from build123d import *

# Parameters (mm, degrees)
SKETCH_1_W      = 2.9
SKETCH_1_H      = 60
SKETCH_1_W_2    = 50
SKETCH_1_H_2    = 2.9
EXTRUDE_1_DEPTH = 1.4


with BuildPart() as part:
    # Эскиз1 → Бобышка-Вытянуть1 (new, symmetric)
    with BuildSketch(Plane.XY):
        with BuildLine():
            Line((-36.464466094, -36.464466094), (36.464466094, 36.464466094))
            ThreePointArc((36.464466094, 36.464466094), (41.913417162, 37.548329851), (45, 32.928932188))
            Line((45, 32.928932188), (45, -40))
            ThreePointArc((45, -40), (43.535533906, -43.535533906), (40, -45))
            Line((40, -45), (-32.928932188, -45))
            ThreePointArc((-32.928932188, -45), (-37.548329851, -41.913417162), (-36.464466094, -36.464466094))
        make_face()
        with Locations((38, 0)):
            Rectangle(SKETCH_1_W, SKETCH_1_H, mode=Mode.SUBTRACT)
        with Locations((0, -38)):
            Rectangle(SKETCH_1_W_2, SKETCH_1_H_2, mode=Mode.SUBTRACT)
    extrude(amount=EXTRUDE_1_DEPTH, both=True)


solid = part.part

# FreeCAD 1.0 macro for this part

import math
import FreeCAD as App
import Part
import Sketcher
from FreeCAD import Vector

doc = App.newDocument("Part")
body = doc.addObject("PartDesign::Body", "Body")

# Sketch on XY plane
sketch1 = body.newObject("Sketcher::SketchObject", "Sketch")
sketch1.AttachmentSupport = (doc.getObject("XY_Plane"), [""])
sketch1.MapMode = "FlatFace"
sketch1.addGeometry([
    Part.LineSegment(Vector(36.5, 36.5, 0), Vector(-36.5, -36.5, 0)),  # 0
    Part.ArcOfCircle(Part.Circle(Vector(-32.9, -40, 0), Vector(0, 0, 1), 5), math.radians(135), math.radians(270)),  # 1
    Part.LineSegment(Vector(-32.9, -45, 0), Vector(40, -45, 0)),  # 2
    Part.ArcOfCircle(Part.Circle(Vector(40, -40, 0), Vector(0, 0, 1), 5), math.radians(-90), math.radians(0)),  # 3
    Part.LineSegment(Vector(45, -40, 0), Vector(45, 32.9, 0)),  # 4
    Part.ArcOfCircle(Part.Circle(Vector(40, 32.9, 0), Vector(0, 0, 1), 5), math.radians(0), math.radians(135)),  # 5
    Part.LineSegment(Vector(-25, -39.5, 0), Vector(-25, -36.5, 0)),  # 6
    Part.LineSegment(Vector(-25, -36.5, 0), Vector(25, -36.5, 0)),  # 7
    Part.LineSegment(Vector(25, -36.5, 0), Vector(25, -39.5, 0)),  # 8
    Part.LineSegment(Vector(25, -39.5, 0), Vector(-25, -39.5, 0)),  # 9
    Part.LineSegment(Vector(36.5, -30, 0), Vector(36.5, 30, 0)),  # 10
    Part.LineSegment(Vector(36.5, 30, 0), Vector(39.5, 30, 0)),  # 11
    Part.LineSegment(Vector(39.5, 30, 0), Vector(39.5, -30, 0)),  # 12
    Part.LineSegment(Vector(39.5, -30, 0), Vector(36.5, -30, 0)),  # 13
], False)
sketch1.addConstraint([
    Sketcher.Constraint("Tangent", 0, 2, 1, 1),
    Sketcher.Constraint("Tangent", 1, 2, 2, 1),
    Sketcher.Constraint("Tangent", 2, 2, 3, 1),
    Sketcher.Constraint("Tangent", 3, 2, 4, 1),
    Sketcher.Constraint("Tangent", 4, 2, 5, 1),
    Sketcher.Constraint("Tangent", 5, 2, 0, 1),
    Sketcher.Constraint("Coincident", 6, 2, 7, 1),
    Sketcher.Constraint("Coincident", 7, 2, 8, 1),
    Sketcher.Constraint("Coincident", 8, 2, 9, 1),
    Sketcher.Constraint("Coincident", 9, 2, 6, 1),
    Sketcher.Constraint("Coincident", 10, 2, 11, 1),
    Sketcher.Constraint("Coincident", 11, 2, 12, 1),
    Sketcher.Constraint("Coincident", 12, 2, 13, 1),
    Sketcher.Constraint("Coincident", 13, 2, 10, 1),
    Sketcher.Constraint("Horizontal", 2),
    Sketcher.Constraint("Vertical", 4),
    Sketcher.Constraint("Vertical", 6),
    Sketcher.Constraint("Horizontal", 7),
    Sketcher.Constraint("Vertical", 8),
    Sketcher.Constraint("Horizontal", 9),
    Sketcher.Constraint("Vertical", 10),
    Sketcher.Constraint("Horizontal", 11),
    Sketcher.Constraint("Vertical", 12),
    Sketcher.Constraint("Horizontal", 13),
    Sketcher.Constraint("Equal", 1, 3),
    Sketcher.Constraint("Equal", 3, 5),
    Sketcher.Constraint("Symmetric", 0, 2, 5, 2, -1, 1),
    Sketcher.Constraint("Equal", 2, 4),
    Sketcher.Constraint("Equal", 13, 6),
    Sketcher.Constraint("Radius", 1, 5.0),
    Sketcher.Constraint("DistanceX", 7, 1, 7, 2, 50.0),
    Sketcher.Constraint("DistanceY", 10, 1, 10, 2, 60.0),
    Sketcher.Constraint("DistanceX", 11, 1, 11, 2, 2.9),
    Sketcher.Constraint("DistanceY", 1, 3, -1, 1, 40.0),
    Sketcher.Constraint("DistanceX", 6, 2, -1, 1, 25.0),
    Sketcher.Constraint("DistanceY", -1, 1, 10, 2, 30.0),
    Sketcher.Constraint("DistanceY", 6, 2, -1, 1, 36.55),
    Sketcher.Constraint("DistanceX", -1, 1, 10, 2, 36.55),
])
pad1 = body.newObject("PartDesign::Pad", "Pad")
pad1.Profile = sketch1
pad1.Length = 2.8
pad1.Midplane = True

doc.recompute()
